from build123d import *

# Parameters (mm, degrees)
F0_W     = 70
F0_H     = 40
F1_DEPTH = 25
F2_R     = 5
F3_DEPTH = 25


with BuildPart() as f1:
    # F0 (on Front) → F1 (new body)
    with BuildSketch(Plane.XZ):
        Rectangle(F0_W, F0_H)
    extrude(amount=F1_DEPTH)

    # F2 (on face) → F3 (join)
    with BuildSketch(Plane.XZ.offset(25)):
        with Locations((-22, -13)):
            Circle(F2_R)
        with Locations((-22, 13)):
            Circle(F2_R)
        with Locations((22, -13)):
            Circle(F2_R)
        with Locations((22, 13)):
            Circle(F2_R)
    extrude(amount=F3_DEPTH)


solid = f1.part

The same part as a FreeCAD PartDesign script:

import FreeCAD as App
import Part
import Sketcher

V = App.Vector

doc = App.newDocument("Part")
body = doc.addObject("PartDesign::Body", "Body")

# Sketch on XZ plane
sketch1 = body.newObject("Sketcher::SketchObject", "Sketch")
sketch1.AttachmentSupport = (doc.getObject("XZ_Plane"), [""])
sketch1.MapMode = "FlatFace"
sketch1.addGeometry([
    Part.LineSegment(V(-35, 20, 0), V(-35, -20, 0)),
    Part.LineSegment(V(-35, -20, 0), V(35, -20, 0)),
    Part.LineSegment(V(35, -20, 0), V(35, 20, 0)),
    Part.LineSegment(V(35, 20, 0), V(-35, 20, 0)),
], False)
sketch1.addConstraint([
    Sketcher.Constraint("Coincident", 0, 2, 1, 1),
    Sketcher.Constraint("Coincident", 1, 2, 2, 1),
    Sketcher.Constraint("Coincident", 2, 2, 3, 1),
    Sketcher.Constraint("Coincident", 3, 2, 0, 1),
    Sketcher.Constraint("Vertical", 0),
    Sketcher.Constraint("Horizontal", 1),
    Sketcher.Constraint("Vertical", 2),
    Sketcher.Constraint("Horizontal", 3),
    Sketcher.Constraint("Symmetric", 0, 2, 2, 2, -1, 1),
    Sketcher.Constraint("DistanceX", 1, 1, 1, 2, 70.0),
    Sketcher.Constraint("DistanceY", 0, 2, 0, 1, 40.0),
])
pad1 = body.newObject("PartDesign::Pad", "Pad")
pad1.Profile = sketch1
pad1.Length = 25

# Sketch on XZ plane
sketch2 = body.newObject("Sketcher::SketchObject", "Sketch001")
sketch2.AttachmentSupport = (doc.getObject("XZ_Plane"), [""])
sketch2.MapMode = "FlatFace"
sketch2.AttachmentOffset = App.Placement(V(0, 0, 25), App.Rotation())
sketch2.addGeometry([
    Part.Circle(V(-22, -13, 0), V(0, 0, 1), 5),
    Part.Circle(V(-22, 13, 0), V(0, 0, 1), 5),
    Part.Circle(V(22, -13, 0), V(0, 0, 1), 5),
    Part.Circle(V(22, 13, 0), V(0, 0, 1), 5),
], False)
sketch2.addConstraint([
    Sketcher.Constraint("Equal", 0, 1),
    Sketcher.Constraint("Equal", 1, 2),
    Sketcher.Constraint("Equal", 2, 3),
    Sketcher.Constraint("Symmetric", 1, 3, 2, 3, -1, 1),
    Sketcher.Constraint("Symmetric", 0, 3, 3, 3, -1, 1),
    Sketcher.Constraint("Symmetric", 0, 3, 2, 3, -2),
    Sketcher.Constraint("Diameter", 0, 10.0),
    Sketcher.Constraint("DistanceX", 0, 3, -1, 1, 22.0),
    Sketcher.Constraint("DistanceY", 0, 3, -1, 1, 13.0),
])
pad2 = body.newObject("PartDesign::Pad", "Pad001")
pad2.Profile = sketch2
pad2.Length = 25

doc.recompute()
